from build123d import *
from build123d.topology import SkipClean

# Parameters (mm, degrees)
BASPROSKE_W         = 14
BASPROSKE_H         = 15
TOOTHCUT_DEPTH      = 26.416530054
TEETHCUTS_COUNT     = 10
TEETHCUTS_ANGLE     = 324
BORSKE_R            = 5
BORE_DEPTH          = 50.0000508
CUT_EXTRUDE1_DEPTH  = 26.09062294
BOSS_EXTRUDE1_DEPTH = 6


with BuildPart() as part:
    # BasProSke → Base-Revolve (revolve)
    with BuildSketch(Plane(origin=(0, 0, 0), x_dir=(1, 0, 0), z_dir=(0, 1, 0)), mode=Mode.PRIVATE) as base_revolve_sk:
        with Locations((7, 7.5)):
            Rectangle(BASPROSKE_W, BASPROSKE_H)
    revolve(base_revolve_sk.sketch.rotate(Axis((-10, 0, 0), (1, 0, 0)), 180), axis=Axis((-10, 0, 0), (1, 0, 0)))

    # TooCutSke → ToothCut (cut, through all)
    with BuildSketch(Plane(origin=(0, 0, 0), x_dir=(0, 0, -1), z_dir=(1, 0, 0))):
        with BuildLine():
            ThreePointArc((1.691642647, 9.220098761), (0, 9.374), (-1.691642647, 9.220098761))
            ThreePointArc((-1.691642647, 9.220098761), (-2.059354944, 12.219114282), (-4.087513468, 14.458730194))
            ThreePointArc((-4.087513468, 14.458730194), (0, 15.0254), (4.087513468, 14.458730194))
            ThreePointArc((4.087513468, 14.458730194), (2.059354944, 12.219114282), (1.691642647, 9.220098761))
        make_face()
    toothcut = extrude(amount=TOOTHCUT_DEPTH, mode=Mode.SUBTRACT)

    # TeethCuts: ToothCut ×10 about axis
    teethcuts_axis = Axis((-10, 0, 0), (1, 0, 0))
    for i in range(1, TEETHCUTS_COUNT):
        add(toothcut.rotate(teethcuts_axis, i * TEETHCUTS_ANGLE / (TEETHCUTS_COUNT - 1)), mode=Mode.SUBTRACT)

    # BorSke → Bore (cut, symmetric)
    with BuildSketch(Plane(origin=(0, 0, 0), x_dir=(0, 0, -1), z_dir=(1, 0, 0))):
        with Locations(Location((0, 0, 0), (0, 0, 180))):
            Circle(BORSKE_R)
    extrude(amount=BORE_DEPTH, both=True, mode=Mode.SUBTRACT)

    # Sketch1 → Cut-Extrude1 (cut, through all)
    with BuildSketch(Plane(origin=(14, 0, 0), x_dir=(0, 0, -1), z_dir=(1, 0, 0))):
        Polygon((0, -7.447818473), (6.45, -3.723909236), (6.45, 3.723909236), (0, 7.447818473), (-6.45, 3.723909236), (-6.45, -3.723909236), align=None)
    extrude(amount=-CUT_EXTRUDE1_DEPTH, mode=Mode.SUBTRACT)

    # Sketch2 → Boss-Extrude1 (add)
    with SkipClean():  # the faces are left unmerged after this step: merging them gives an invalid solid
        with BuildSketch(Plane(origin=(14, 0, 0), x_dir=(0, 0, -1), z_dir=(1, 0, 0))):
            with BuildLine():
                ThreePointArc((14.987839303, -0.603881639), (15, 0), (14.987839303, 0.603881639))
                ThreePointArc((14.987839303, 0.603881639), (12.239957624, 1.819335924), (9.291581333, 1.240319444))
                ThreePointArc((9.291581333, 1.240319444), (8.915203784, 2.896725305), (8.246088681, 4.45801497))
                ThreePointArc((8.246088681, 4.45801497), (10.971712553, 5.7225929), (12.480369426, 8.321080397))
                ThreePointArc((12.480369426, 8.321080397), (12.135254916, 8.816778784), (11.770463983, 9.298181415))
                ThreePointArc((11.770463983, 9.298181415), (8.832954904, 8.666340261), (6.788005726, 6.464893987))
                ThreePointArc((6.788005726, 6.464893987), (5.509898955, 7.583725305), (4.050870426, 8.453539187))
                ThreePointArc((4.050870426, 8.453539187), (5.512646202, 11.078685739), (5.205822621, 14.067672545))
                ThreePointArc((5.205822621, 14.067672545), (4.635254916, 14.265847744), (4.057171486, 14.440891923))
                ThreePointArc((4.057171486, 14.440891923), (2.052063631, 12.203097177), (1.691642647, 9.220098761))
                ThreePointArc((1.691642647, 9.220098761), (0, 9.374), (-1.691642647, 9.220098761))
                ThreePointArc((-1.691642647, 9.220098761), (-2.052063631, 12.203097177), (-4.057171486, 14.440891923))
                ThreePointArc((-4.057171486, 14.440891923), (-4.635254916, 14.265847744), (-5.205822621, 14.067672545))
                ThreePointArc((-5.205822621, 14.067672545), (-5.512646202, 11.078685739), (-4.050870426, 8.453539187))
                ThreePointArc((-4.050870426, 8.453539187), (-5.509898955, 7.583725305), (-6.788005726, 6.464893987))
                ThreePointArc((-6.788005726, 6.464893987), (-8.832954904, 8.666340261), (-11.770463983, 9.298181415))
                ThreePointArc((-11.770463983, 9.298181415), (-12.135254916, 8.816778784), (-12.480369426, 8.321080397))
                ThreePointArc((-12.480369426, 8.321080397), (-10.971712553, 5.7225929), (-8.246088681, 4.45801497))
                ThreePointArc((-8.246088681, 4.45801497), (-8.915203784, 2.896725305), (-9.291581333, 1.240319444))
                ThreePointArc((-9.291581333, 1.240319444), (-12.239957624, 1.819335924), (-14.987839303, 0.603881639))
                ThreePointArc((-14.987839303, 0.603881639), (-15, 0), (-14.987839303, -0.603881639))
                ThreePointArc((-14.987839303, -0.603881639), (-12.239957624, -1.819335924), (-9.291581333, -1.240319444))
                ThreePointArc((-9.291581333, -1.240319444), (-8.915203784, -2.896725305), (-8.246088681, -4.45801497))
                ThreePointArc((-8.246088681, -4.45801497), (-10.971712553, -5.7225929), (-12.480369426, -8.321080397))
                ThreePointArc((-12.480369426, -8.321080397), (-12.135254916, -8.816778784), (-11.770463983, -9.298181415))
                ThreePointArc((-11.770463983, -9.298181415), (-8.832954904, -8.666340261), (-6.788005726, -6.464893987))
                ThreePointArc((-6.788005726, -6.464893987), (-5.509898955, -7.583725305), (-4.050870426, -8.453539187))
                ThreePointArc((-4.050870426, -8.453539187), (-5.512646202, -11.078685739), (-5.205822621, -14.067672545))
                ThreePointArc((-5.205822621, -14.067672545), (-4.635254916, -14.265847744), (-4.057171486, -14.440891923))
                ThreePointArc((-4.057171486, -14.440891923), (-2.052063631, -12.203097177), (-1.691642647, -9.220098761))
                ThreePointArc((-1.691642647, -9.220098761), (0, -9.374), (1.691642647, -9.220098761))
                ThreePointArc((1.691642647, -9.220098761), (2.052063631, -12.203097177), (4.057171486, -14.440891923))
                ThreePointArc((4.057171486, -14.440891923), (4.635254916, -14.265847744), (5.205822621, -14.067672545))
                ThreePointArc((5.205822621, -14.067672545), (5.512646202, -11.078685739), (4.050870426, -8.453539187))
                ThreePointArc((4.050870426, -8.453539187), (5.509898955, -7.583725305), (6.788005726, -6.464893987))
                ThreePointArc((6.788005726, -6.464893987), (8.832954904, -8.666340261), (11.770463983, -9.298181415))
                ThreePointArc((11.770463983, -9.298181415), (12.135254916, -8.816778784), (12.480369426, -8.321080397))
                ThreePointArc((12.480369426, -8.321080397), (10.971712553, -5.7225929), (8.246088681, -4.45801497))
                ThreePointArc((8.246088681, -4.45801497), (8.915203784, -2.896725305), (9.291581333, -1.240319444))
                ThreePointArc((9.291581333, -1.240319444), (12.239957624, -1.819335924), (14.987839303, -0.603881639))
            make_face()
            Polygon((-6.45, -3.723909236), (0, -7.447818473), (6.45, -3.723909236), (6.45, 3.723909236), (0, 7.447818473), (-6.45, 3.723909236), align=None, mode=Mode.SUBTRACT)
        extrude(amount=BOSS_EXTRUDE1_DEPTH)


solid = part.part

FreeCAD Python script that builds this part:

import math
import FreeCAD as App
import Part
import Sketcher
Q = App.Units.Quantity

doc = App.newDocument("Part")
body = doc.addObject("PartDesign::Body", "Body")

# Sketch on XZ plane
sketch1 = body.newObject("Sketcher::SketchObject", "Sketch")
sketch1.AttachmentSupport = (doc.getObject("XZ_Plane"), [""])
sketch1.MapMode = "FlatFace"
sketch1.addGeometry([
    Part.LineSegment(App.Vector(0, -15, 0), App.Vector(0, 0, 0)),
    Part.LineSegment(App.Vector(0, 0, 0), App.Vector(14, 0, 0)),
    Part.LineSegment(App.Vector(14, 0, 0), App.Vector(14, -15, 0)),
    Part.LineSegment(App.Vector(14, -15, 0), App.Vector(0, -15, 0)),
], False)
sketch1.addConstraint([
    Sketcher.Constraint("Coincident", 0, 2, 1, 1),
    Sketcher.Constraint("Coincident", 1, 2, 2, 1),
    Sketcher.Constraint("Coincident", 2, 2, 3, 1),
    Sketcher.Constraint("Coincident", 3, 2, 0, 1),
    Sketcher.Constraint("Vertical", 0),
    Sketcher.Constraint("Horizontal", 1),
    Sketcher.Constraint("Vertical", 2),
    Sketcher.Constraint("Horizontal", 3),
    Sketcher.Constraint("Coincident", 0, 2, -1, 1),
    Sketcher.Constraint("DistanceX", 1, 1, 1, 2, 14.0),
    Sketcher.Constraint("DistanceY", 0, 1, 0, 2, 15.0),
])
revolution = body.newObject("PartDesign::Revolution", "Revolution")
revolution.Profile = sketch1
revolution.ReferenceAxis = (sketch1, ["H_Axis"])
revolution.Angle = 360

# Sketch on YZ plane
sketch2 = body.newObject("Sketcher::SketchObject", "Sketch001")
sketch2.AttachmentSupport = (doc.getObject("YZ_Plane"), [""])
sketch2.MapMode = "FlatFace"
sketch2.addGeometry([
    Part.ArcOfCircle(Part.Circle(App.Vector(0, 0, 0), App.Vector(0, 0, 1), 9.4), math.radians(-10), math.radians(10)),
    Part.ArcOfCircle(Part.Circle(App.Vector(10.1, -6.6, 0), App.Vector(0, 0, 1), 5), math.radians(30), math.radians(101)),
    Part.ArcOfCircle(Part.Circle(App.Vector(0, 0, 0), App.Vector(0, 0, 1), 15), math.radians(-16), math.radians(16)),
    Part.ArcOfCircle(Part.Circle(App.Vector(10.1, 6.6, 0), App.Vector(0, 0, 1), 5), math.radians(-101), math.radians(-30)),
], False)
sketch2.addConstraint([
    Sketcher.Constraint("Coincident", 0, 1, 1, 2),
    Sketcher.Constraint("Coincident", 1, 1, 2, 1),
    Sketcher.Constraint("Coincident", 2, 2, 3, 2),
    Sketcher.Constraint("Coincident", 3, 1, 0, 2),
    Sketcher.Constraint("Coincident", 0, 3, -1, 1),
    Sketcher.Constraint("Coincident", 2, 3, -1, 1),
    Sketcher.Constraint("Equal", 1, 3),
    Sketcher.Constraint("Symmetric", 1, 3, 3, 3, -1),
    Sketcher.Constraint("Radius", 1, 5.0),
    Sketcher.Constraint("Radius", 0, 9.374),
    Sketcher.Constraint("Radius", 2, 15.0254),
    Sketcher.Constraint("DistanceX", -1, 1, 0, 1, 9.220099),
    Sketcher.Constraint("DistanceX", -1, 1, 1, 3, 10.139549),
])
pocket1 = body.newObject("PartDesign::Pocket", "Pocket")
pocket1.Profile = sketch2
pocket1.Type = "ThroughAll"
pocket1.Reversed = True
doc.recompute()

polarpattern = body.newObject("PartDesign::PolarPattern", "PolarPattern")
polarpattern.Originals = [pocket1]
polarpattern.Axis = (doc.getObject("X_Axis"), [""])
polarpattern.Angle = 360
polarpattern.Occurrences = 10
body.Tip = polarpattern

# Sketch on YZ plane
sketch3 = body.newObject("Sketcher::SketchObject", "Sketch002")
sketch3.AttachmentSupport = (doc.getObject("YZ_Plane"), [""])
sketch3.MapMode = "FlatFace"
sketch3.addGeometry(Part.Circle(App.Vector(0, 0, 0), App.Vector(0, 0, 1), 5), False)
sketch3.addConstraint([
    Sketcher.Constraint("Coincident", 0, 3, -1, 1),
    Sketcher.Constraint("Diameter", 0, 10.0),
])
pocket2 = body.newObject("PartDesign::Pocket", "Pocket001")
pocket2.Profile = sketch3
pocket2.Length = 100.000102
pocket2.Midplane = True

# Sketch on YZ plane
sketch4 = body.newObject("Sketcher::SketchObject", "Sketch003")
sketch4.AttachmentSupport = (doc.getObject("YZ_Plane"), [""])
sketch4.MapMode = "FlatFace"
sketch4.AttachmentOffset = App.Placement(App.Vector(0, 0, 14), App.Rotation())
sketch4.addGeometry([
    Part.LineSegment(App.Vector(-7, 0, 0), App.Vector(-4, -6, 0)),  # 0
    Part.LineSegment(App.Vector(-4, -6, 0), App.Vector(4, -6, 0)),  # 1
    Part.LineSegment(App.Vector(4, -6, 0), App.Vector(7, 0, 0)),  # 2
    Part.LineSegment(App.Vector(7, 0, 0), App.Vector(4, 6, 0)),  # 3
    Part.LineSegment(App.Vector(4, 6, 0), App.Vector(-4, 6, 0)),  # 4
    Part.LineSegment(App.Vector(-4, 6, 0), App.Vector(-7, 0, 0)),  # 5
], False)
sketch4.addConstraint([
    Sketcher.Constraint("Coincident", 0, 2, 1, 1),
    Sketcher.Constraint("Coincident", 1, 2, 2, 1),
    Sketcher.Constraint("Coincident", 2, 2, 3, 1),
    Sketcher.Constraint("Coincident", 3, 2, 4, 1),
    Sketcher.Constraint("Coincident", 4, 2, 5, 1),
    Sketcher.Constraint("Coincident", 5, 2, 0, 1),
    Sketcher.Constraint("Horizontal", 1),
    Sketcher.Constraint("Horizontal", 4),
    Sketcher.Constraint("Symmetric", 0, 2, 3, 2, -1, 1),
    Sketcher.Constraint("Symmetric", 2, 2, 5, 2, -1, 1),
    Sketcher.Constraint("PointOnObject", 2, 2, -1),
    Sketcher.Constraint("Parallel", 2, 5),
    Sketcher.Constraint("Vertical", 1, 2, 3, 2),
    Sketcher.Constraint("Angle", 0, Q("-60 deg")),
    Sketcher.Constraint("DistanceY", 1, 2, 3, 2, 12.9),
    Sketcher.Constraint("DistanceX", 1, 1, 1, 2, 7.447818),
])
pocket3 = body.newObject("PartDesign::Pocket", "Pocket002")
pocket3.Profile = sketch4
pocket3.Type = "ThroughAll"

# Sketch on YZ plane
sketch5 = body.newObject("Sketcher::SketchObject", "Sketch004")
sketch5.AttachmentSupport = (doc.getObject("YZ_Plane"), [""])
sketch5.MapMode = "FlatFace"
sketch5.AttachmentOffset = App.Placement(App.Vector(0, 0, 14), App.Rotation())
sketch5.addGeometry([
    Part.ArcOfCircle(Part.Circle(App.Vector(0, 0, 0), App.Vector(0, 0, 1), 15), math.radians(-92.31), math.radians(-87.69)),  # 0
    Part.ArcOfCircle(Part.Circle(App.Vector(-3.1, -11.7, 0), App.Vector(0, 0, 1), 5), math.radians(-41), math.radians(29)),  # 1
    Part.ArcOfCircle(Part.Circle(App.Vector(0, 0, 0), App.Vector(0, 0, 1), 9.4), math.radians(-82), math.radians(-62)),  # 2
    Part.ArcOfCircle(Part.Circle(App.Vector(9.4, -7.6, 0), App.Vector(0, 0, 1), 5), math.radians(-173), math.radians(-103)),  # 3
    Part.ArcOfCircle(Part.Circle(App.Vector(0, 0, 0), App.Vector(0, 0, 1), 15), math.radians(-56.31), math.radians(-51.69)),  # 4
    Part.ArcOfCircle(Part.Circle(App.Vector(4.3, -11.3, 0), App.Vector(0, 0, 1), 5), math.radians(-5), math.radians(65)),  # 5
    Part.ArcOfCircle(Part.Circle(App.Vector(0, 0, 0), App.Vector(0, 0, 1), 9.4), math.radians(-46), math.radians(-26)),  # 6
    Part.ArcOfCircle(Part.Circle(App.Vector(12.1, -0.6, 0), App.Vector(0, 0, 1), 5), math.radians(-137), math.radians(-67)),  # 7
    Part.ArcOfCircle(Part.Circle(App.Vector(0, 0, 0), App.Vector(0, 0, 1), 15), math.radians(-20.31), math.radians(-15.69)),  # 8
    Part.ArcOfCircle(Part.Circle(App.Vector(10.1, -6.6, 0), App.Vector(0, 0, 1), 5), math.radians(31), math.radians(101)),  # 9
    Part.ArcOfCircle(Part.Circle(App.Vector(0, 0, 0), App.Vector(0, 0, 1), 9.4), math.radians(-10), math.radians(10)),  # 10
    Part.ArcOfCircle(Part.Circle(App.Vector(10.1, 6.6, 0), App.Vector(0, 0, 1), 5), math.radians(-101), math.radians(-31)),  # 11
    Part.ArcOfCircle(Part.Circle(App.Vector(0, 0, 0), App.Vector(0, 0, 1), 15), math.radians(15.69), math.radians(20.31)),  # 12
    Part.ArcOfCircle(Part.Circle(App.Vector(12.1, 0.6, 0), App.Vector(0, 0, 1), 5), math.radians(67), math.radians(137)),  # 13
    Part.ArcOfCircle(Part.Circle(App.Vector(0, 0, 0), App.Vector(0, 0, 1), 9.4), math.radians(26), math.radians(46)),  # 14
    Part.ArcOfCircle(Part.Circle(App.Vector(4.3, 11.3, 0), App.Vector(0, 0, 1), 5), math.radians(-65), math.radians(5)),  # 15
    Part.ArcOfCircle(Part.Circle(App.Vector(0, 0, 0), App.Vector(0, 0, 1), 15), math.radians(51.69), math.radians(56.31)),  # 16
    Part.ArcOfCircle(Part.Circle(App.Vector(9.4, 7.6, 0), App.Vector(0, 0, 1), 5), math.radians(103), math.radians(173)),  # 17
    Part.ArcOfCircle(Part.Circle(App.Vector(0, 0, 0), App.Vector(0, 0, 1), 9.4), math.radians(62), math.radians(82)),  # 18
    Part.ArcOfCircle(Part.Circle(App.Vector(-3.1, 11.7, 0), App.Vector(0, 0, 1), 5), math.radians(-29), math.radians(41)),  # 19
    Part.ArcOfCircle(Part.Circle(App.Vector(0, 0, 0), App.Vector(0, 0, 1), 15), math.radians(87.69), math.radians(92.31)),  # 20
    Part.ArcOfCircle(Part.Circle(App.Vector(3.1, 11.7, 0), App.Vector(0, 0, 1), 5), math.radians(139), math.radians(209)),  # 21
    Part.ArcOfCircle(Part.Circle(App.Vector(0, 0, 0), App.Vector(0, 0, 1), 9.4), math.radians(98), math.radians(118)),  # 22
    Part.ArcOfCircle(Part.Circle(App.Vector(-9.4, 7.6, 0), App.Vector(0, 0, 1), 5), math.radians(7), math.radians(77)),  # 23
    Part.ArcOfCircle(Part.Circle(App.Vector(0, 0, 0), App.Vector(0, 0, 1), 15), math.radians(123.69), math.radians(128.31)),  # 24
    Part.ArcOfCircle(Part.Circle(App.Vector(-4.3, 11.3, 0), App.Vector(0, 0, 1), 5), math.radians(175), math.radians(245)),  # 25
    Part.ArcOfCircle(Part.Circle(App.Vector(0, 0, 0), App.Vector(0, 0, 1), 9.4), math.radians(134), math.radians(154)),  # 26
    Part.ArcOfCircle(Part.Circle(App.Vector(-12.1, 0.6, 0), App.Vector(0, 0, 1), 5), math.radians(43), math.radians(113)),  # 27
    Part.ArcOfCircle(Part.Circle(App.Vector(0, 0, 0), App.Vector(0, 0, 1), 15), math.radians(159.69), math.radians(164.31)),  # 28
    Part.ArcOfCircle(Part.Circle(App.Vector(-10.1, 6.6, 0), App.Vector(0, 0, 1), 5), math.radians(-149), math.radians(-79)),  # 29
    Part.ArcOfCircle(Part.Circle(App.Vector(0, 0, 0), App.Vector(0, 0, 1), 9.4), math.radians(170), math.radians(190)),  # 30
    Part.ArcOfCircle(Part.Circle(App.Vector(-10.1, -6.6, 0), App.Vector(0, 0, 1), 5), math.radians(79), math.radians(149)),  # 31
    Part.ArcOfCircle(Part.Circle(App.Vector(0, 0, 0), App.Vector(0, 0, 1), 15), math.radians(-164.31), math.radians(-159.69)),  # 32
    Part.ArcOfCircle(Part.Circle(App.Vector(-12.1, -0.6, 0), App.Vector(0, 0, 1), 5), math.radians(-113), math.radians(-43)),  # 33
    Part.ArcOfCircle(Part.Circle(App.Vector(0, 0, 0), App.Vector(0, 0, 1), 9.4), math.radians(-154), math.radians(-134)),  # 34
    Part.ArcOfCircle(Part.Circle(App.Vector(-4.3, -11.3, 0), App.Vector(0, 0, 1), 5), math.radians(115), math.radians(185)),  # 35
    Part.ArcOfCircle(Part.Circle(App.Vector(0, 0, 0), App.Vector(0, 0, 1), 15), math.radians(-128.31), math.radians(-123.69)),  # 36
    Part.ArcOfCircle(Part.Circle(App.Vector(-9.4, -7.6, 0), App.Vector(0, 0, 1), 5), math.radians(-77), math.radians(-7)),  # 37
    Part.ArcOfCircle(Part.Circle(App.Vector(0, 0, 0), App.Vector(0, 0, 1), 9.4), math.radians(-118), math.radians(-98)),  # 38
    Part.ArcOfCircle(Part.Circle(App.Vector(3.1, -11.7, 0), App.Vector(0, 0, 1), 5), math.radians(151), math.radians(221)),  # 39
    Part.LineSegment(App.Vector(-7.4, 0, 0), App.Vector(-3.7, 6.5, 0)),  # 40
    Part.LineSegment(App.Vector(-3.7, 6.5, 0), App.Vector(3.7, 6.5, 0)),  # 41
    Part.LineSegment(App.Vector(3.7, 6.5, 0), App.Vector(7.4, 0, 0)),  # 42
    Part.LineSegment(App.Vector(7.4, 0, 0), App.Vector(3.7, -6.5, 0)),  # 43
    Part.LineSegment(App.Vector(3.7, -6.5, 0), App.Vector(-3.7, -6.5, 0)),  # 44
    Part.LineSegment(App.Vector(-3.7, -6.5, 0), App.Vector(-7.4, 0, 0)),  # 45
], False)
sketch5.addConstraint([
    Sketcher.Constraint("Coincident", 0, 2, 1, 1),
    Sketcher.Constraint("Coincident", 1, 2, 2, 1),
    Sketcher.Constraint("Coincident", 2, 2, 3, 1),
    Sketcher.Constraint("Coincident", 3, 2, 4, 1),
    Sketcher.Constraint("Coincident", 4, 2, 5, 1),
    Sketcher.Constraint("Coincident", 5, 2, 6, 1),
    Sketcher.Constraint("Coincident", 6, 2, 7, 1),
    Sketcher.Constraint("Coincident", 7, 2, 8, 1),
    Sketcher.Constraint("Coincident", 8, 2, 9, 1),
    Sketcher.Constraint("Coincident", 9, 2, 10, 1),
    Sketcher.Constraint("Coincident", 10, 2, 11, 1),
    Sketcher.Constraint("Coincident", 11, 2, 12, 1),
    Sketcher.Constraint("Coincident", 12, 2, 13, 1),
    Sketcher.Constraint("Coincident", 13, 2, 14, 1),
    Sketcher.Constraint("Coincident", 14, 2, 15, 1),
    Sketcher.Constraint("Coincident", 15, 2, 16, 1),
    Sketcher.Constraint("Coincident", 16, 2, 17, 1),
    Sketcher.Constraint("Coincident", 17, 2, 18, 1),
    Sketcher.Constraint("Coincident", 18, 2, 19, 1),
    Sketcher.Constraint("Coincident", 19, 2, 20, 1),
    Sketcher.Constraint("Coincident", 20, 2, 21, 1),
    Sketcher.Constraint("Coincident", 21, 2, 22, 1),
    Sketcher.Constraint("Coincident", 22, 2, 23, 1),
    Sketcher.Constraint("Coincident", 23, 2, 24, 1),
    Sketcher.Constraint("Coincident", 24, 2, 25, 1),
    Sketcher.Constraint("Coincident", 25, 2, 26, 1),
    Sketcher.Constraint("Coincident", 26, 2, 27, 1),
    Sketcher.Constraint("Coincident", 27, 2, 28, 1),
    Sketcher.Constraint("Coincident", 28, 2, 29, 1),
    Sketcher.Constraint("Coincident", 29, 2, 30, 1),
    Sketcher.Constraint("Coincident", 30, 2, 31, 1),
    Sketcher.Constraint("Coincident", 31, 2, 32, 1),
    Sketcher.Constraint("Coincident", 32, 2, 33, 1),
    Sketcher.Constraint("Coincident", 33, 2, 34, 1),
    Sketcher.Constraint("Coincident", 34, 2, 35, 1),
    Sketcher.Constraint("Coincident", 35, 2, 36, 1),
    Sketcher.Constraint("Coincident", 36, 2, 37, 1),
    Sketcher.Constraint("Coincident", 37, 2, 38, 1),
    Sketcher.Constraint("Coincident", 38, 2, 39, 1),
    Sketcher.Constraint("Coincident", 39, 2, 0, 1),
    Sketcher.Constraint("Coincident", 40, 2, 41, 1),
    Sketcher.Constraint("Coincident", 41, 2, 42, 1),
    Sketcher.Constraint("Coincident", 42, 2, 43, 1),
    Sketcher.Constraint("Coincident", 43, 2, 44, 1),
    Sketcher.Constraint("Coincident", 44, 2, 45, 1),
    Sketcher.Constraint("Coincident", 45, 2, 40, 1),
    Sketcher.Constraint("Horizontal", 41),
    Sketcher.Constraint("Horizontal", 44),
    Sketcher.Constraint("Coincident", 0, 3, -1, 1),
    Sketcher.Constraint("Coincident", 2, 3, -1, 1),
    Sketcher.Constraint("Coincident", 4, 3, -1, 1),
    Sketcher.Constraint("Coincident", 6, 3, -1, 1),
    Sketcher.Constraint("Coincident", 8, 3, -1, 1),
    Sketcher.Constraint("Coincident", 10, 3, -1, 1),
    Sketcher.Constraint("Coincident", 12, 3, -1, 1),
    Sketcher.Constraint("Coincident", 14, 3, -1, 1),
    Sketcher.Constraint("Coincident", 16, 3, -1, 1),
    Sketcher.Constraint("Coincident", 18, 3, -1, 1),
    Sketcher.Constraint("Coincident", 20, 3, -1, 1),
    Sketcher.Constraint("Coincident", 22, 3, -1, 1),
    Sketcher.Constraint("Coincident", 24, 3, -1, 1),
    Sketcher.Constraint("Coincident", 26, 3, -1, 1),
    Sketcher.Constraint("Coincident", 28, 3, -1, 1),
    Sketcher.Constraint("Coincident", 30, 3, -1, 1),
    Sketcher.Constraint("Coincident", 32, 3, -1, 1),
    Sketcher.Constraint("Coincident", 34, 3, -1, 1),
    Sketcher.Constraint("Coincident", 36, 3, -1, 1),
    Sketcher.Constraint("Coincident", 38, 3, -1, 1),
    Sketcher.Constraint("Equal", 1, 3),
    Sketcher.Constraint("Equal", 0, 4),
    Sketcher.Constraint("Equal", 3, 5),
    Sketcher.Constraint("Equal", 2, 6),
    Sketcher.Constraint("Equal", 5, 7),
    Sketcher.Constraint("Equal", 4, 8),
    Sketcher.Constraint("Equal", 7, 9),
    Sketcher.Constraint("Equal", 6, 10),
    Sketcher.Constraint("Equal", 9, 11),
    Sketcher.Constraint("Equal", 8, 12),
    Sketcher.Constraint("Equal", 11, 13),
    Sketcher.Constraint("Equal", 10, 14),
    Sketcher.Constraint("Equal", 13, 15),
    Sketcher.Constraint("Equal", 12, 16),
    Sketcher.Constraint("Equal", 15, 17),
    Sketcher.Constraint("Equal", 14, 18),
    Sketcher.Constraint("Equal", 17, 19),
    Sketcher.Constraint("Equal", 16, 20),
    Sketcher.Constraint("Equal", 19, 21),
    Sketcher.Constraint("Equal", 18, 22),
    Sketcher.Constraint("Equal", 21, 23),
    Sketcher.Constraint("Equal", 20, 24),
    Sketcher.Constraint("Equal", 23, 25),
    Sketcher.Constraint("Equal", 22, 26),
    Sketcher.Constraint("Equal", 25, 27),
    Sketcher.Constraint("Equal", 24, 28),
    Sketcher.Constraint("Equal", 27, 29),
    Sketcher.Constraint("Equal", 26, 30),
    Sketcher.Constraint("Equal", 29, 31),
    Sketcher.Constraint("Equal", 28, 32),
    Sketcher.Constraint("Equal", 31, 33),
    Sketcher.Constraint("Equal", 30, 34),
    Sketcher.Constraint("Equal", 33, 35),
    Sketcher.Constraint("Equal", 32, 36),
    Sketcher.Constraint("Equal", 35, 37),
    Sketcher.Constraint("Equal", 34, 38),
    Sketcher.Constraint("Equal", 37, 39),
    Sketcher.Constraint("Symmetric", 1, 3, 21, 3, -1, 1),
    Sketcher.Constraint("Symmetric", 3, 3, 23, 3, -1, 1),
    Sketcher.Constraint("Symmetric", 5, 3, 25, 3, -1, 1),
    Sketcher.Constraint("Symmetric", 7, 3, 27, 3, -1, 1),
    Sketcher.Constraint("Symmetric", 9, 3, 29, 3, -1, 1),
    Sketcher.Constraint("Symmetric", 11, 3, 31, 3, -1, 1),
    Sketcher.Constraint("Symmetric", 13, 3, 33, 3, -1, 1),
    Sketcher.Constraint("Symmetric", 15, 3, 35, 3, -1, 1),
    Sketcher.Constraint("Symmetric", 17, 3, 37, 3, -1, 1),
    Sketcher.Constraint("Symmetric", 19, 3, 39, 3, -1, 1),
    Sketcher.Constraint("Symmetric", 40, 2, 43, 2, -1, 1),
    Sketcher.Constraint("Symmetric", 42, 2, 45, 2, -1, 1),
    Sketcher.Constraint("Symmetric", 19, 3, 21, 3, -2),
    Sketcher.Constraint("Symmetric", 17, 3, 23, 3, -2),
    Sketcher.Constraint("Symmetric", 15, 3, 25, 3, -2),
    Sketcher.Constraint("Symmetric", 13, 3, 27, 3, -2),
    Sketcher.Constraint("Symmetric", 11, 3, 29, 3, -2),
    Sketcher.Constraint("PointOnObject", 42, 2, -1),
    Sketcher.Constraint("Parallel", 42, 45),
    Sketcher.Constraint("Vertical", 41, 2, 43, 2),
    Sketcher.Constraint("Radius", 0, 15.0),
    Sketcher.Constraint("Radius", 1, 5.0),
    Sketcher.Constraint("Angle", 40, Q("60 deg")),
    Sketcher.Constraint("Radius", 2, 9.374),
    Sketcher.Constraint("DistanceY", -1, 1, 40, 2, 6.45),
    Sketcher.Constraint("DistanceX", 41, 1, 41, 2, 7.447818),
    Sketcher.Constraint("DistanceY", 3, 3, -1, 1, 7.601801),
    Sketcher.Constraint("DistanceX", -1, 1, 7, 3, 12.086198),
    Sketcher.Constraint("DistanceX", -1, 1, 9, 2, 9.220099),
    Sketcher.Constraint("DistanceX", -1, 1, 3, 3, 9.416331),
    Sketcher.Constraint("DistanceY", 5, 3, -1, 1, 11.304548),
    Sketcher.Constraint("DistanceX", -1, 1, 9, 3, 10.139549),
    Sketcher.Constraint("DistanceX", -1, 1, 0, 2, 0.603882),
    Sketcher.Constraint("DistanceX", -1, 1, 1, 2, 1.240319),
    Sketcher.Constraint("DistanceX", -1, 1, 4, 2, 9.298181),
    Sketcher.Constraint("DistanceX", -1, 1, 6, 2, 8.453539),
])
pad1 = body.newObject("PartDesign::Pad", "Pad")
pad1.Profile = sketch5
pad1.Length = 6

doc.recompute()
